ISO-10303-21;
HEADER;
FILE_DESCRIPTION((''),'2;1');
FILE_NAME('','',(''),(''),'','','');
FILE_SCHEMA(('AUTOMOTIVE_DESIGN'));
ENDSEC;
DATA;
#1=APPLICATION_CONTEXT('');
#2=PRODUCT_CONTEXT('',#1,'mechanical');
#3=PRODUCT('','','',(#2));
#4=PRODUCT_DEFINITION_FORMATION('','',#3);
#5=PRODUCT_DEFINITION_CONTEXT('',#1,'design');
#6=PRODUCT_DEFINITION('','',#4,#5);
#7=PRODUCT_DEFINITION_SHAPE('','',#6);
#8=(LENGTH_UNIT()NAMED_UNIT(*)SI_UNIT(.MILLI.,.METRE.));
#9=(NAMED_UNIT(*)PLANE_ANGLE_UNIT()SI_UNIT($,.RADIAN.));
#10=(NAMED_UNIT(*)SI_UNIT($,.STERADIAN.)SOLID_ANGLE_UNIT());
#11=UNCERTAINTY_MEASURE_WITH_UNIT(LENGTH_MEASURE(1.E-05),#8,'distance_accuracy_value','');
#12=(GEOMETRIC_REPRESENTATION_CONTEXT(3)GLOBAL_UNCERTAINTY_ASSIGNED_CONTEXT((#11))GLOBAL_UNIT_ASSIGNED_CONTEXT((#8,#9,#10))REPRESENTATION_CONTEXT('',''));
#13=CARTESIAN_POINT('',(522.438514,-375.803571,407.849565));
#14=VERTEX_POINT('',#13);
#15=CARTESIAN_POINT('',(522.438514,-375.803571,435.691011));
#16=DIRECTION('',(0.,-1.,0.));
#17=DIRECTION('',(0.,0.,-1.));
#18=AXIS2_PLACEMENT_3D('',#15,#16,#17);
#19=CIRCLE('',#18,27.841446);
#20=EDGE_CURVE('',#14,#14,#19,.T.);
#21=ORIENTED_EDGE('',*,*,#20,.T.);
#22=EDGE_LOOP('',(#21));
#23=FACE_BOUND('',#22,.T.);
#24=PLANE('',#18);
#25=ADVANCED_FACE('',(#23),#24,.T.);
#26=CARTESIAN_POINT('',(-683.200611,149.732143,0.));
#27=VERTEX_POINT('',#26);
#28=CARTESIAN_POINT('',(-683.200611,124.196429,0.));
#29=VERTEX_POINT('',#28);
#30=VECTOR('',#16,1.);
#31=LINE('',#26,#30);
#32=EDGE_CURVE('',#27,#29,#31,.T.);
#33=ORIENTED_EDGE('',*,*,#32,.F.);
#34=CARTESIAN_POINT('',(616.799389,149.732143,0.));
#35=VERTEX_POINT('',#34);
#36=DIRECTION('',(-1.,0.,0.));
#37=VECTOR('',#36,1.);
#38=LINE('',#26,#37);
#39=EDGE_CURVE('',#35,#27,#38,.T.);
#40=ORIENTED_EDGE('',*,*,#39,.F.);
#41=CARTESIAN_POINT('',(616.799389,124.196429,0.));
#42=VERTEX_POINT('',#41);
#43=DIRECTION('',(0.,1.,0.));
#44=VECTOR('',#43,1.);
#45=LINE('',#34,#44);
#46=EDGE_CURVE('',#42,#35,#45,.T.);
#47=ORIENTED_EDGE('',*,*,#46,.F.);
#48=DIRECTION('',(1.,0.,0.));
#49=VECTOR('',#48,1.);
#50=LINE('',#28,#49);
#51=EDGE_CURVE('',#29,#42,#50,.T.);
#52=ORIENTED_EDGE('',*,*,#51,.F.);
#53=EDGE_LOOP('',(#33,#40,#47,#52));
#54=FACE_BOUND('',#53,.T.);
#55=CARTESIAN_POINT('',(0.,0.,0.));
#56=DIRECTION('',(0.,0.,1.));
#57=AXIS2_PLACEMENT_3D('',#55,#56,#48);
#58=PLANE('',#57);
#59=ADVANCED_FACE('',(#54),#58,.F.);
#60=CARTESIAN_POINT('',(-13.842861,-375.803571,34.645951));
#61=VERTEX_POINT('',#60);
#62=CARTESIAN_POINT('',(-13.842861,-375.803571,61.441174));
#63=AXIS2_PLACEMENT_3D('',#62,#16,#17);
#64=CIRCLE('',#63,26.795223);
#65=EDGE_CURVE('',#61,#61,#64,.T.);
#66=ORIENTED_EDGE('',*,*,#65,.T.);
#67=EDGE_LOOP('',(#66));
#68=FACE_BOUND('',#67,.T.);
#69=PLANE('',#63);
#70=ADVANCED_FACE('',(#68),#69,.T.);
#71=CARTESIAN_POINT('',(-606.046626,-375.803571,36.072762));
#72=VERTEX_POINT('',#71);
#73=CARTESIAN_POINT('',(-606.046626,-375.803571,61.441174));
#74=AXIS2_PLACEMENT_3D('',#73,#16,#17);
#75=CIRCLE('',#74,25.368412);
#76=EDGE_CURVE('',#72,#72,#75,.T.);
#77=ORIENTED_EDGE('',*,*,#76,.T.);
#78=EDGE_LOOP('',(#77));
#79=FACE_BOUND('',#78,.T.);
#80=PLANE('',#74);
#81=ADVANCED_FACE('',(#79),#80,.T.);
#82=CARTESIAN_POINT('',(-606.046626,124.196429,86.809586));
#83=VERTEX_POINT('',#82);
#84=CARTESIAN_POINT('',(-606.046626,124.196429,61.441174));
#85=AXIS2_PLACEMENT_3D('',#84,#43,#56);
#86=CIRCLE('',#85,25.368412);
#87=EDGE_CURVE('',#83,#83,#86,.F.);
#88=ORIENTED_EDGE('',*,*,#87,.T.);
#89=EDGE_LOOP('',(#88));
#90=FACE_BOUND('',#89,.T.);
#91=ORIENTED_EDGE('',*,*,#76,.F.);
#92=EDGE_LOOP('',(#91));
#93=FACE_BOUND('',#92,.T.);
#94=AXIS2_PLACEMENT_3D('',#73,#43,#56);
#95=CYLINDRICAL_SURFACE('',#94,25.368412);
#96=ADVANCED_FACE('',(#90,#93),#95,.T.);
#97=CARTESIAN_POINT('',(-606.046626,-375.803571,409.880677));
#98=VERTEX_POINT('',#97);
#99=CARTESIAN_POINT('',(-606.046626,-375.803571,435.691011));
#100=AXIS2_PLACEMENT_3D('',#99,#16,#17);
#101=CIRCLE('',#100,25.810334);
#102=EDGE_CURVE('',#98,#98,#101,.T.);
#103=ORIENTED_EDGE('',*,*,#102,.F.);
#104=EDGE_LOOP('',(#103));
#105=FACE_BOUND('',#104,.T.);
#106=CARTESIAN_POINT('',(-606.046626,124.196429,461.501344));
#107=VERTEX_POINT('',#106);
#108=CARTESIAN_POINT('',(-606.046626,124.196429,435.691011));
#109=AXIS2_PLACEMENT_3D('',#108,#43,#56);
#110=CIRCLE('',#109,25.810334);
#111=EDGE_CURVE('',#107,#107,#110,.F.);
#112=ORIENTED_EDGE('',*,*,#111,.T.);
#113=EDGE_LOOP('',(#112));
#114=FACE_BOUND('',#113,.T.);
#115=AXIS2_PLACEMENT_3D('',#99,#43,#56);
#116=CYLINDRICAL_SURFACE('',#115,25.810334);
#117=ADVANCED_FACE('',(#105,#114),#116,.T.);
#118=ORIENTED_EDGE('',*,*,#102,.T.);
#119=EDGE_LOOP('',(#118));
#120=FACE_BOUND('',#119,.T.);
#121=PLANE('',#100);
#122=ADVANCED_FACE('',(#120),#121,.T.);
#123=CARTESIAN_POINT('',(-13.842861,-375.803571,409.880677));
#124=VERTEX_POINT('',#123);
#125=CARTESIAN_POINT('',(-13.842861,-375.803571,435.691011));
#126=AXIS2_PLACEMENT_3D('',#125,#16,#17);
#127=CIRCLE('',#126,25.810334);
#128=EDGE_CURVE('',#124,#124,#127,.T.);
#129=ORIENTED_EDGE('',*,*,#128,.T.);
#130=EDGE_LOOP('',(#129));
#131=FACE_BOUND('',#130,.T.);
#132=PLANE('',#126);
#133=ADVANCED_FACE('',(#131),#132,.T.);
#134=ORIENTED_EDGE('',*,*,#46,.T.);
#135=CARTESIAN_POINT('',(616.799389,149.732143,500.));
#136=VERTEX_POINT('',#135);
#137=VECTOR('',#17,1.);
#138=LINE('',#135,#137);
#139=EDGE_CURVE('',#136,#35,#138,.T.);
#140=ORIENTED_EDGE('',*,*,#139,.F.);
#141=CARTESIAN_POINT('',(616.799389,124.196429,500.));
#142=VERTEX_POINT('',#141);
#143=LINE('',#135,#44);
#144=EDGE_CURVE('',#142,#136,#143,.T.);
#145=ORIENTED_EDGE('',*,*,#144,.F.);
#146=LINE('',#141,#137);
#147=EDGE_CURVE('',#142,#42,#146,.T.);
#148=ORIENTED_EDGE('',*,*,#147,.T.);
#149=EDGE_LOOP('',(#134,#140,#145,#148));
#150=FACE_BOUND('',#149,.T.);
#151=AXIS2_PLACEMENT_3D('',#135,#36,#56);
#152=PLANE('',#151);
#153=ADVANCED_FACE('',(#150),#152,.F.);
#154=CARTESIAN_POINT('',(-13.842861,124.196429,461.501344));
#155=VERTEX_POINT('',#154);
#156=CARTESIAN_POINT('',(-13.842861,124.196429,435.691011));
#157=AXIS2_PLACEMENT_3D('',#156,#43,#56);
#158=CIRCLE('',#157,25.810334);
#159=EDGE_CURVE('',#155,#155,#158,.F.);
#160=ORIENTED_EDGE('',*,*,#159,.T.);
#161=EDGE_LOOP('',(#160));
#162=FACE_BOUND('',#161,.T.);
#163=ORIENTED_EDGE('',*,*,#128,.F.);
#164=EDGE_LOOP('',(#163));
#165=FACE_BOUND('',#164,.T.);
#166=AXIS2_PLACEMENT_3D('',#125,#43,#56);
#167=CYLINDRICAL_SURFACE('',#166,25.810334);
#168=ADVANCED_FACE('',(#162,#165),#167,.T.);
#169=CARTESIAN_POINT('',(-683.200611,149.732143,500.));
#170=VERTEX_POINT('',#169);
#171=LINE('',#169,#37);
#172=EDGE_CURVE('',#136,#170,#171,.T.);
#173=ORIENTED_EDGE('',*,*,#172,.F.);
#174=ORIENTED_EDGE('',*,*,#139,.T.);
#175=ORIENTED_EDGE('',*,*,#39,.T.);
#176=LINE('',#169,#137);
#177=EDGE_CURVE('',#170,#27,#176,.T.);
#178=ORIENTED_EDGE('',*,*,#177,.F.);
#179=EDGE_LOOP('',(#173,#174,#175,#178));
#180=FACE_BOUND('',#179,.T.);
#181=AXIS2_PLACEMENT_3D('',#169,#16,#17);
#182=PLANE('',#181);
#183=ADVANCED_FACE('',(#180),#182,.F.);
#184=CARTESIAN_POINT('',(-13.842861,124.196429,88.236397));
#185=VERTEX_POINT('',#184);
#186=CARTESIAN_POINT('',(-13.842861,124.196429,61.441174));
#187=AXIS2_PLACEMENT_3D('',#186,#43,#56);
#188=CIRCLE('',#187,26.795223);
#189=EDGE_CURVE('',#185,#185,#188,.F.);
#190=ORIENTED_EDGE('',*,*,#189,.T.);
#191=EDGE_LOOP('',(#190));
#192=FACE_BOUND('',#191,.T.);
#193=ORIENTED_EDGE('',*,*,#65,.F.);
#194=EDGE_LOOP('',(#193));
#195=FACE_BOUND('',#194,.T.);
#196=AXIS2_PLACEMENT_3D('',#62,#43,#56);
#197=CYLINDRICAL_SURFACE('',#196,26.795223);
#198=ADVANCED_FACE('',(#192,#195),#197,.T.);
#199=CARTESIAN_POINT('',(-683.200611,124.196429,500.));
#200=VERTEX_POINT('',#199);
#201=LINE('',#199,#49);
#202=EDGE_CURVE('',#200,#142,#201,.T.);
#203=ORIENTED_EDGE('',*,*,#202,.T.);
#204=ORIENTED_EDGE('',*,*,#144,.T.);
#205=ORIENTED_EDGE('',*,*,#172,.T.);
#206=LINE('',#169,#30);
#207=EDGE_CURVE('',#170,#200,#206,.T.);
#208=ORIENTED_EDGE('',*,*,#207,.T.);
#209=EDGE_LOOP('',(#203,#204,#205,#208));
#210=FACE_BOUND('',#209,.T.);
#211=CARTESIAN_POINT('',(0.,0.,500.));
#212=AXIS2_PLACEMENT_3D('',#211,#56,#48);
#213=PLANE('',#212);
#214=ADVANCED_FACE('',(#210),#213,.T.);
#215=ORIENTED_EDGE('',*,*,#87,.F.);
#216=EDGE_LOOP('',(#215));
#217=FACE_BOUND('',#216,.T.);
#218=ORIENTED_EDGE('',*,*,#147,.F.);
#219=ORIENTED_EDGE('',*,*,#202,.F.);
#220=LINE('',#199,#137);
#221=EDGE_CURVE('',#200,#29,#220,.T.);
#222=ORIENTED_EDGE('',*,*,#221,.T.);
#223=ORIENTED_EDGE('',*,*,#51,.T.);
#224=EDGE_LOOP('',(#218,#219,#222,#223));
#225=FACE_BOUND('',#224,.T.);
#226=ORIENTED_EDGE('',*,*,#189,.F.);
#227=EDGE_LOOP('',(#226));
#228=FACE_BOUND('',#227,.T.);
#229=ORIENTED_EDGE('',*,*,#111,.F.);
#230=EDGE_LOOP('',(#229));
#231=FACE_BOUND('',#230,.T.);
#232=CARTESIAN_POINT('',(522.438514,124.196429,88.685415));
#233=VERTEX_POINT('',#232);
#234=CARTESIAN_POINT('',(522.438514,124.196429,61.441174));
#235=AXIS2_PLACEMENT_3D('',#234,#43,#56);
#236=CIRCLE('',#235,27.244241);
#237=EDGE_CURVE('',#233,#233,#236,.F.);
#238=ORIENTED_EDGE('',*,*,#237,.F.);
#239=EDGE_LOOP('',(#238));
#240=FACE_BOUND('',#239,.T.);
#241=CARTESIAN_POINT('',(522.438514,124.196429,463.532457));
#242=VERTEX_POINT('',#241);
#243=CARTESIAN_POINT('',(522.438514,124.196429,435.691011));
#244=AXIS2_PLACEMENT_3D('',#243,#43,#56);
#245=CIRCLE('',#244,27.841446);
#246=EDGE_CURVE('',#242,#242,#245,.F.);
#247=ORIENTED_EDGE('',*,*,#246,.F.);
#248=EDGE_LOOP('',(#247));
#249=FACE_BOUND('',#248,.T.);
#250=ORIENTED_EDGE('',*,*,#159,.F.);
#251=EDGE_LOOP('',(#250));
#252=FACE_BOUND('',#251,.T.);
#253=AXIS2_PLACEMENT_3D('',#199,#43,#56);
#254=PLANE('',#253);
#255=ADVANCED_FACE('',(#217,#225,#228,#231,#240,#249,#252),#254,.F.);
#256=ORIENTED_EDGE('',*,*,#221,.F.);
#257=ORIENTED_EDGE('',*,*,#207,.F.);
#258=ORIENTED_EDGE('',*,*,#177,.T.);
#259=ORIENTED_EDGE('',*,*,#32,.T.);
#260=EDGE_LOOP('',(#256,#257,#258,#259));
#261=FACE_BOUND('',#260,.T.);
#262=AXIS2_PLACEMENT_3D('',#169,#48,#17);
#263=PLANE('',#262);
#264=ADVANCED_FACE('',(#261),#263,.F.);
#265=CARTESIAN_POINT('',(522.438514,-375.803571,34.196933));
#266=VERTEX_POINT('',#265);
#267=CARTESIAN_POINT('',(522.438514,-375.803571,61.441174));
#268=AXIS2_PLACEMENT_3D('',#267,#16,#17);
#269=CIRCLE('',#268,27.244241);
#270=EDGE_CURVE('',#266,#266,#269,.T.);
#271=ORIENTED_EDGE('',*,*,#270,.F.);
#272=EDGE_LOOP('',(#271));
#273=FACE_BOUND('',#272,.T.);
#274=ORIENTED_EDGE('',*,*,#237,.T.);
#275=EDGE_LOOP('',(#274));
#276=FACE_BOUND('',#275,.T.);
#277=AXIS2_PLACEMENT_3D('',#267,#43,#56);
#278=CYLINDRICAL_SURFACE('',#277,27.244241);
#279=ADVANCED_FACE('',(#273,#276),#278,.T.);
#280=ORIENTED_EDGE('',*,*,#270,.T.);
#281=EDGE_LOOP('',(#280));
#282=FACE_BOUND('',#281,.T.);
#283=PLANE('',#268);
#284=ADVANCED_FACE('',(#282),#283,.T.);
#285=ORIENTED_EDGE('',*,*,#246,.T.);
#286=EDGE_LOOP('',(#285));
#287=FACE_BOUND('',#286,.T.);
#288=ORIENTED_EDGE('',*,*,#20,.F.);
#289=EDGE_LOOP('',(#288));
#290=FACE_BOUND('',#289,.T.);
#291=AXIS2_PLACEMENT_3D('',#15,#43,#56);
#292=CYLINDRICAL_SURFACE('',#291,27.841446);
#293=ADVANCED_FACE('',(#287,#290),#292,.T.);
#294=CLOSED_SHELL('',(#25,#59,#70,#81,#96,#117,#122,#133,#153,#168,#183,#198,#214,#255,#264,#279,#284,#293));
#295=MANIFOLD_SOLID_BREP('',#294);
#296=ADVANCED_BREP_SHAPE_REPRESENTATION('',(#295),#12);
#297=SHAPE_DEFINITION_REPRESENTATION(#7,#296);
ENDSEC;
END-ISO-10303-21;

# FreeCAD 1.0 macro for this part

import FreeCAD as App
import Part
import Sketcher

doc = App.newDocument("Part")
body = doc.addObject("PartDesign::Body", "Body")

# Sketch on XY plane
sketch1 = body.newObject("Sketcher::SketchObject", "Sketch")
sketch1.AttachmentSupport = (doc.getObject("XY_Plane"), [""])
sketch1.MapMode = "FlatFace"
sketch1.addGeometry(Part.LineSegment(App.Vector(-683, 150, 0), App.Vector(-683, 124, 0)), False)
sketch1.addGeometry(Part.LineSegment(App.Vector(-683, 124, 0), App.Vector(617, 124, 0)), False)
sketch1.addGeometry(Part.LineSegment(App.Vector(617, 124, 0), App.Vector(617, 150, 0)), False)
sketch1.addGeometry(Part.LineSegment(App.Vector(617, 150, 0), App.Vector(-683, 150, 0)), False)
sketch1.addConstraint(Sketcher.Constraint("Coincident", 0, 2, 1, 1))
sketch1.addConstraint(Sketcher.Constraint("Coincident", 1, 2, 2, 1))
sketch1.addConstraint(Sketcher.Constraint("Coincident", 2, 2, 3, 1))
sketch1.addConstraint(Sketcher.Constraint("Coincident", 3, 2, 0, 1))
sketch1.addConstraint(Sketcher.Constraint("Vertical", 0))
sketch1.addConstraint(Sketcher.Constraint("Horizontal", 1))
sketch1.addConstraint(Sketcher.Constraint("Vertical", 2))
sketch1.addConstraint(Sketcher.Constraint("Horizontal", 3))
sketch1.addConstraint(Sketcher.Constraint("DistanceX", 1, 1, 1, 2, 1300.0))
sketch1.addConstraint(Sketcher.Constraint("DistanceY", 0, 2, 0, 1, 25.535714))
sketch1.addConstraint(Sketcher.Constraint("DistanceX", 0, 2, -1, 1, 683.200611))
sketch1.addConstraint(Sketcher.Constraint("DistanceY", -1, 1, 0, 2, 124.196429))
pad1 = body.newObject("PartDesign::Pad", "Pad")
pad1.Profile = sketch1
pad1.Length = 500

# Sketch on XZ plane
sketch2 = body.newObject("Sketcher::SketchObject", "Sketch001")
sketch2.AttachmentSupport = (doc.getObject("XZ_Plane"), [""])
sketch2.MapMode = "FlatFace"
sketch2.AttachmentOffset = App.Placement(App.Vector(0, 0, -124.196429), App.Rotation())
sketch2.addGeometry(Part.Circle(App.Vector(-606, 436, 0), App.Vector(0, 0, 1), 26), False)
sketch2.addGeometry(Part.Circle(App.Vector(-606, 61, 0), App.Vector(0, 0, 1), 25), False)
sketch2.addGeometry(Part.Circle(App.Vector(-14, 436, 0), App.Vector(0, 0, 1), 26), False)
sketch2.addGeometry(Part.Circle(App.Vector(522, 436, 0), App.Vector(0, 0, 1), 28), False)
sketch2.addGeometry(Part.Circle(App.Vector(-14, 61, 0), App.Vector(0, 0, 1), 27), False)
sketch2.addGeometry(Part.Circle(App.Vector(522, 61, 0), App.Vector(0, 0, 1), 27), False)
sketch2.addConstraint(Sketcher.Constraint("Equal", 0, 2))
sketch2.addConstraint(Sketcher.Constraint("Horizontal", 0, 3, 2, 3))
sketch2.addConstraint(Sketcher.Constraint("Horizontal", 2, 3, 3, 3))
sketch2.addConstraint(Sketcher.Constraint("Horizontal", 1, 3, 4, 3))
sketch2.addConstraint(Sketcher.Constraint("Horizontal", 4, 3, 5, 3))
sketch2.addConstraint(Sketcher.Constraint("Vertical", 0, 3, 1, 3))
sketch2.addConstraint(Sketcher.Constraint("Vertical", 2, 3, 4, 3))
sketch2.addConstraint(Sketcher.Constraint("Vertical", 3, 3, 5, 3))
sketch2.addConstraint(Sketcher.Constraint("Diameter", 3, 55.682892))
sketch2.addConstraint(Sketcher.Constraint("Diameter", 5, 54.488482))
sketch2.addConstraint(Sketcher.Constraint("Diameter", 0, 51.620667))
sketch2.addConstraint(Sketcher.Constraint("Diameter", 1, 50.736824))
sketch2.addConstraint(Sketcher.Constraint("Diameter", 4, 53.590446))
sketch2.addConstraint(Sketcher.Constraint("DistanceY", -1, 1, 0, 3, 435.691011))
sketch2.addConstraint(Sketcher.Constraint("DistanceX", 2, 3, -1, 1, 13.842861))
sketch2.addConstraint(Sketcher.Constraint("DistanceX", 0, 3, 3, 3, 1128.485139))
sketch2.addConstraint(Sketcher.Constraint("DistanceX", 0, 3, -1, 1, 606.046626))
sketch2.addConstraint(Sketcher.Constraint("DistanceY", -1, 1, 1, 3, 61.441174))
pad2 = body.newObject("PartDesign::Pad", "Pad001")
pad2.Profile = sketch2
pad2.Length = 500

doc.recompute()
